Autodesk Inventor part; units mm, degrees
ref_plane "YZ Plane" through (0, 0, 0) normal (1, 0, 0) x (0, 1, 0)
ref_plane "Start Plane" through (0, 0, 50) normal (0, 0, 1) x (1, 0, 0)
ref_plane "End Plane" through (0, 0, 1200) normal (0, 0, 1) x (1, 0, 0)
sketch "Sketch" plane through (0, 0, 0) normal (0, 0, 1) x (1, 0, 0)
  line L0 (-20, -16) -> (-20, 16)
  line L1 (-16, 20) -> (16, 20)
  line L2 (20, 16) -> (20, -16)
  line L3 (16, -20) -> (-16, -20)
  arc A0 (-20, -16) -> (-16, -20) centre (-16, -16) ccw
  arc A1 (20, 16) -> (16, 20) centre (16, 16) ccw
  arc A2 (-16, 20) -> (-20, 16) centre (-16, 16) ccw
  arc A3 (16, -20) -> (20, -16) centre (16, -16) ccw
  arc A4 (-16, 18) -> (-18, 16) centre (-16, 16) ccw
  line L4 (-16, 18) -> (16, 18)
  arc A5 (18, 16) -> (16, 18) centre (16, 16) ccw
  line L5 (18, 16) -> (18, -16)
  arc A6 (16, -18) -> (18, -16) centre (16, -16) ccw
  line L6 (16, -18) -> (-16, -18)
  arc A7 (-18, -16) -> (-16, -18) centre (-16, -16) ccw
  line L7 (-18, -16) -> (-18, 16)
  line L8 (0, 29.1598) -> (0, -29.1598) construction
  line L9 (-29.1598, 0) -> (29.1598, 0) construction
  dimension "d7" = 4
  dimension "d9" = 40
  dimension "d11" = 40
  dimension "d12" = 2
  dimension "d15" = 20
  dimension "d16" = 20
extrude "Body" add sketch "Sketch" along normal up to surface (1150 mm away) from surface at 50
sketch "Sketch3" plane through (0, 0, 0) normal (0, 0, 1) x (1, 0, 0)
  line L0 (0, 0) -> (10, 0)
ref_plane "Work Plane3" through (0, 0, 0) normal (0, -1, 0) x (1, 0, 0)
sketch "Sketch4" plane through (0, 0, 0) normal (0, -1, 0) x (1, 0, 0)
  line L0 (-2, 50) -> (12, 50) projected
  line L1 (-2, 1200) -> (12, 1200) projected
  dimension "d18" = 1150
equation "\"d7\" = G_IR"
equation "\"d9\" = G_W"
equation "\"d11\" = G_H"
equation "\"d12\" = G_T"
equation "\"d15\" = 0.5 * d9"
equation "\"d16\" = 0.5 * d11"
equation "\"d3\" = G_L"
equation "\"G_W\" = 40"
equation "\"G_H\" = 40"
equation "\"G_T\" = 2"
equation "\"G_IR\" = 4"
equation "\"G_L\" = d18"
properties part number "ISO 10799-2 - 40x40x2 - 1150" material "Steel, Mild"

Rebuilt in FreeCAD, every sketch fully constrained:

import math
import FreeCAD as App
import Part
import Sketcher

V = App.Vector

doc = App.newDocument("Part")
params = doc.addObject("Spreadsheet::Sheet", "Params")
for row, (alias, value) in enumerate([
    ("sketch1_radius", "4 mm"),
    ("sketch1_radius2", "2 mm"),
    ("pad1_length", "1150 mm"),
], start=1):
    params.set(f"A{row}", alias)
    params.set(f"B{row}", "=" + value)
    params.setAlias(f"B{row}", alias)

body = doc.addObject("PartDesign::Body", "Body")

sketch1 = doc.addObject("Sketcher::SketchObject", "Sketch")
body.addObject(sketch1)
sketch1.AttachmentSupport = (doc.XY_Plane, [""])
sketch1.MapMode = "FlatFace"
sketch1.AttachmentOffset = App.Placement(V(0, 0, 50), App.Rotation())
sketch1.addGeometry([
    Part.LineSegment(V(-20, 16, 0), V(-20, -16, 0)),
    Part.ArcOfCircle(Part.Circle(V(-16, -16, 0), V(0, 0, 1), 4), math.radians(180), math.radians(270)),
    Part.LineSegment(V(-16, -20, 0), V(16, -20, 0)),
    Part.ArcOfCircle(Part.Circle(V(16, -16, 0), V(0, 0, 1), 4), math.radians(-90), math.radians(0)),
    Part.LineSegment(V(20, -16, 0), V(20, 16, 0)),
    Part.ArcOfCircle(Part.Circle(V(16, 16, 0), V(0, 0, 1), 4), math.radians(0), math.radians(90)),
    Part.LineSegment(V(16, 20, 0), V(-16, 20, 0)),
    Part.ArcOfCircle(Part.Circle(V(-16, 16, 0), V(0, 0, 1), 4), math.radians(90), math.radians(180)),
    Part.ArcOfCircle(Part.Circle(V(-16, 16, 0), V(0, 0, 1), 2), math.radians(90), math.radians(180)),
    Part.LineSegment(V(-16, 18, 0), V(16, 18, 0)),
    Part.ArcOfCircle(Part.Circle(V(16, 16, 0), V(0, 0, 1), 2), math.radians(0), math.radians(90)),
    Part.LineSegment(V(18, 16, 0), V(18, -16, 0)),
    Part.ArcOfCircle(Part.Circle(V(16, -16, 0), V(0, 0, 1), 2), math.radians(-90), math.radians(0)),
    Part.LineSegment(V(16, -18, 0), V(-16, -18, 0)),
    Part.ArcOfCircle(Part.Circle(V(-16, -16, 0), V(0, 0, 1), 2), math.radians(180), math.radians(270)),
    Part.LineSegment(V(-18, -16, 0), V(-18, 16, 0)),
], False)
sketch1.addConstraint([
    Sketcher.Constraint("Tangent", 0, 2, 1, 1),
    Sketcher.Constraint("Tangent", 1, 2, 2, 1),
    Sketcher.Constraint("Tangent", 2, 2, 3, 1),
    Sketcher.Constraint("Tangent", 3, 2, 4, 1),
    Sketcher.Constraint("Tangent", 4, 2, 5, 1),
    Sketcher.Constraint("Tangent", 5, 2, 6, 1),
    Sketcher.Constraint("Tangent", 6, 2, 7, 1),
    Sketcher.Constraint("Tangent", 7, 2, 0, 1),
    Sketcher.Constraint("Tangent", 8, 1, 9, 1),
    Sketcher.Constraint("Tangent", 9, 2, 10, 2),
    Sketcher.Constraint("Tangent", 10, 1, 11, 1),
    Sketcher.Constraint("Tangent", 11, 2, 12, 2),
    Sketcher.Constraint("Tangent", 12, 1, 13, 1),
    Sketcher.Constraint("Tangent", 13, 2, 14, 2),
    Sketcher.Constraint("Tangent", 14, 1, 15, 1),
    Sketcher.Constraint("Tangent", 15, 2, 8, 2),
    Sketcher.Constraint("Vertical", 0),
    Sketcher.Constraint("Horizontal", 2),
    Sketcher.Constraint("Vertical", 4),
    Sketcher.Constraint("Horizontal", 6),
    Sketcher.Constraint("Horizontal", 9),
    Sketcher.Constraint("Vertical", 11),
    Sketcher.Constraint("Horizontal", 13),
    Sketcher.Constraint("Vertical", 15),
    Sketcher.Constraint("Coincident", 8, 3, 7, 3),
    Sketcher.Constraint("Coincident", 10, 3, 5, 3),
    Sketcher.Constraint("Coincident", 12, 3, 3, 3),
    Sketcher.Constraint("Equal", 1, 3),
    Sketcher.Constraint("Equal", 3, 5),
    Sketcher.Constraint("Equal", 5, 7),
    Sketcher.Constraint("Equal", 12, 14),
    Sketcher.Constraint("Symmetric", 1, 3, 5, 3, -1, 1),
    Sketcher.Constraint("Equal", 13, 0),
    Sketcher.Constraint("Radius", 1, 4.0),
    Sketcher.Constraint("Radius", 8, 2.0),
    Sketcher.Constraint("DistanceX", 0, 2, -1, 1, 20.0),
])
sketch1.setExpression("Constraints[33]", "Params.sketch1_radius")
sketch1.setExpression("Constraints[34]", "Params.sketch1_radius2")
pad1 = doc.addObject("PartDesign::Pad", "Pad")
body.addObject(pad1)
pad1.Profile = sketch1
pad1.setExpression("Length", "Params.pad1_length")

doc.recompute()
